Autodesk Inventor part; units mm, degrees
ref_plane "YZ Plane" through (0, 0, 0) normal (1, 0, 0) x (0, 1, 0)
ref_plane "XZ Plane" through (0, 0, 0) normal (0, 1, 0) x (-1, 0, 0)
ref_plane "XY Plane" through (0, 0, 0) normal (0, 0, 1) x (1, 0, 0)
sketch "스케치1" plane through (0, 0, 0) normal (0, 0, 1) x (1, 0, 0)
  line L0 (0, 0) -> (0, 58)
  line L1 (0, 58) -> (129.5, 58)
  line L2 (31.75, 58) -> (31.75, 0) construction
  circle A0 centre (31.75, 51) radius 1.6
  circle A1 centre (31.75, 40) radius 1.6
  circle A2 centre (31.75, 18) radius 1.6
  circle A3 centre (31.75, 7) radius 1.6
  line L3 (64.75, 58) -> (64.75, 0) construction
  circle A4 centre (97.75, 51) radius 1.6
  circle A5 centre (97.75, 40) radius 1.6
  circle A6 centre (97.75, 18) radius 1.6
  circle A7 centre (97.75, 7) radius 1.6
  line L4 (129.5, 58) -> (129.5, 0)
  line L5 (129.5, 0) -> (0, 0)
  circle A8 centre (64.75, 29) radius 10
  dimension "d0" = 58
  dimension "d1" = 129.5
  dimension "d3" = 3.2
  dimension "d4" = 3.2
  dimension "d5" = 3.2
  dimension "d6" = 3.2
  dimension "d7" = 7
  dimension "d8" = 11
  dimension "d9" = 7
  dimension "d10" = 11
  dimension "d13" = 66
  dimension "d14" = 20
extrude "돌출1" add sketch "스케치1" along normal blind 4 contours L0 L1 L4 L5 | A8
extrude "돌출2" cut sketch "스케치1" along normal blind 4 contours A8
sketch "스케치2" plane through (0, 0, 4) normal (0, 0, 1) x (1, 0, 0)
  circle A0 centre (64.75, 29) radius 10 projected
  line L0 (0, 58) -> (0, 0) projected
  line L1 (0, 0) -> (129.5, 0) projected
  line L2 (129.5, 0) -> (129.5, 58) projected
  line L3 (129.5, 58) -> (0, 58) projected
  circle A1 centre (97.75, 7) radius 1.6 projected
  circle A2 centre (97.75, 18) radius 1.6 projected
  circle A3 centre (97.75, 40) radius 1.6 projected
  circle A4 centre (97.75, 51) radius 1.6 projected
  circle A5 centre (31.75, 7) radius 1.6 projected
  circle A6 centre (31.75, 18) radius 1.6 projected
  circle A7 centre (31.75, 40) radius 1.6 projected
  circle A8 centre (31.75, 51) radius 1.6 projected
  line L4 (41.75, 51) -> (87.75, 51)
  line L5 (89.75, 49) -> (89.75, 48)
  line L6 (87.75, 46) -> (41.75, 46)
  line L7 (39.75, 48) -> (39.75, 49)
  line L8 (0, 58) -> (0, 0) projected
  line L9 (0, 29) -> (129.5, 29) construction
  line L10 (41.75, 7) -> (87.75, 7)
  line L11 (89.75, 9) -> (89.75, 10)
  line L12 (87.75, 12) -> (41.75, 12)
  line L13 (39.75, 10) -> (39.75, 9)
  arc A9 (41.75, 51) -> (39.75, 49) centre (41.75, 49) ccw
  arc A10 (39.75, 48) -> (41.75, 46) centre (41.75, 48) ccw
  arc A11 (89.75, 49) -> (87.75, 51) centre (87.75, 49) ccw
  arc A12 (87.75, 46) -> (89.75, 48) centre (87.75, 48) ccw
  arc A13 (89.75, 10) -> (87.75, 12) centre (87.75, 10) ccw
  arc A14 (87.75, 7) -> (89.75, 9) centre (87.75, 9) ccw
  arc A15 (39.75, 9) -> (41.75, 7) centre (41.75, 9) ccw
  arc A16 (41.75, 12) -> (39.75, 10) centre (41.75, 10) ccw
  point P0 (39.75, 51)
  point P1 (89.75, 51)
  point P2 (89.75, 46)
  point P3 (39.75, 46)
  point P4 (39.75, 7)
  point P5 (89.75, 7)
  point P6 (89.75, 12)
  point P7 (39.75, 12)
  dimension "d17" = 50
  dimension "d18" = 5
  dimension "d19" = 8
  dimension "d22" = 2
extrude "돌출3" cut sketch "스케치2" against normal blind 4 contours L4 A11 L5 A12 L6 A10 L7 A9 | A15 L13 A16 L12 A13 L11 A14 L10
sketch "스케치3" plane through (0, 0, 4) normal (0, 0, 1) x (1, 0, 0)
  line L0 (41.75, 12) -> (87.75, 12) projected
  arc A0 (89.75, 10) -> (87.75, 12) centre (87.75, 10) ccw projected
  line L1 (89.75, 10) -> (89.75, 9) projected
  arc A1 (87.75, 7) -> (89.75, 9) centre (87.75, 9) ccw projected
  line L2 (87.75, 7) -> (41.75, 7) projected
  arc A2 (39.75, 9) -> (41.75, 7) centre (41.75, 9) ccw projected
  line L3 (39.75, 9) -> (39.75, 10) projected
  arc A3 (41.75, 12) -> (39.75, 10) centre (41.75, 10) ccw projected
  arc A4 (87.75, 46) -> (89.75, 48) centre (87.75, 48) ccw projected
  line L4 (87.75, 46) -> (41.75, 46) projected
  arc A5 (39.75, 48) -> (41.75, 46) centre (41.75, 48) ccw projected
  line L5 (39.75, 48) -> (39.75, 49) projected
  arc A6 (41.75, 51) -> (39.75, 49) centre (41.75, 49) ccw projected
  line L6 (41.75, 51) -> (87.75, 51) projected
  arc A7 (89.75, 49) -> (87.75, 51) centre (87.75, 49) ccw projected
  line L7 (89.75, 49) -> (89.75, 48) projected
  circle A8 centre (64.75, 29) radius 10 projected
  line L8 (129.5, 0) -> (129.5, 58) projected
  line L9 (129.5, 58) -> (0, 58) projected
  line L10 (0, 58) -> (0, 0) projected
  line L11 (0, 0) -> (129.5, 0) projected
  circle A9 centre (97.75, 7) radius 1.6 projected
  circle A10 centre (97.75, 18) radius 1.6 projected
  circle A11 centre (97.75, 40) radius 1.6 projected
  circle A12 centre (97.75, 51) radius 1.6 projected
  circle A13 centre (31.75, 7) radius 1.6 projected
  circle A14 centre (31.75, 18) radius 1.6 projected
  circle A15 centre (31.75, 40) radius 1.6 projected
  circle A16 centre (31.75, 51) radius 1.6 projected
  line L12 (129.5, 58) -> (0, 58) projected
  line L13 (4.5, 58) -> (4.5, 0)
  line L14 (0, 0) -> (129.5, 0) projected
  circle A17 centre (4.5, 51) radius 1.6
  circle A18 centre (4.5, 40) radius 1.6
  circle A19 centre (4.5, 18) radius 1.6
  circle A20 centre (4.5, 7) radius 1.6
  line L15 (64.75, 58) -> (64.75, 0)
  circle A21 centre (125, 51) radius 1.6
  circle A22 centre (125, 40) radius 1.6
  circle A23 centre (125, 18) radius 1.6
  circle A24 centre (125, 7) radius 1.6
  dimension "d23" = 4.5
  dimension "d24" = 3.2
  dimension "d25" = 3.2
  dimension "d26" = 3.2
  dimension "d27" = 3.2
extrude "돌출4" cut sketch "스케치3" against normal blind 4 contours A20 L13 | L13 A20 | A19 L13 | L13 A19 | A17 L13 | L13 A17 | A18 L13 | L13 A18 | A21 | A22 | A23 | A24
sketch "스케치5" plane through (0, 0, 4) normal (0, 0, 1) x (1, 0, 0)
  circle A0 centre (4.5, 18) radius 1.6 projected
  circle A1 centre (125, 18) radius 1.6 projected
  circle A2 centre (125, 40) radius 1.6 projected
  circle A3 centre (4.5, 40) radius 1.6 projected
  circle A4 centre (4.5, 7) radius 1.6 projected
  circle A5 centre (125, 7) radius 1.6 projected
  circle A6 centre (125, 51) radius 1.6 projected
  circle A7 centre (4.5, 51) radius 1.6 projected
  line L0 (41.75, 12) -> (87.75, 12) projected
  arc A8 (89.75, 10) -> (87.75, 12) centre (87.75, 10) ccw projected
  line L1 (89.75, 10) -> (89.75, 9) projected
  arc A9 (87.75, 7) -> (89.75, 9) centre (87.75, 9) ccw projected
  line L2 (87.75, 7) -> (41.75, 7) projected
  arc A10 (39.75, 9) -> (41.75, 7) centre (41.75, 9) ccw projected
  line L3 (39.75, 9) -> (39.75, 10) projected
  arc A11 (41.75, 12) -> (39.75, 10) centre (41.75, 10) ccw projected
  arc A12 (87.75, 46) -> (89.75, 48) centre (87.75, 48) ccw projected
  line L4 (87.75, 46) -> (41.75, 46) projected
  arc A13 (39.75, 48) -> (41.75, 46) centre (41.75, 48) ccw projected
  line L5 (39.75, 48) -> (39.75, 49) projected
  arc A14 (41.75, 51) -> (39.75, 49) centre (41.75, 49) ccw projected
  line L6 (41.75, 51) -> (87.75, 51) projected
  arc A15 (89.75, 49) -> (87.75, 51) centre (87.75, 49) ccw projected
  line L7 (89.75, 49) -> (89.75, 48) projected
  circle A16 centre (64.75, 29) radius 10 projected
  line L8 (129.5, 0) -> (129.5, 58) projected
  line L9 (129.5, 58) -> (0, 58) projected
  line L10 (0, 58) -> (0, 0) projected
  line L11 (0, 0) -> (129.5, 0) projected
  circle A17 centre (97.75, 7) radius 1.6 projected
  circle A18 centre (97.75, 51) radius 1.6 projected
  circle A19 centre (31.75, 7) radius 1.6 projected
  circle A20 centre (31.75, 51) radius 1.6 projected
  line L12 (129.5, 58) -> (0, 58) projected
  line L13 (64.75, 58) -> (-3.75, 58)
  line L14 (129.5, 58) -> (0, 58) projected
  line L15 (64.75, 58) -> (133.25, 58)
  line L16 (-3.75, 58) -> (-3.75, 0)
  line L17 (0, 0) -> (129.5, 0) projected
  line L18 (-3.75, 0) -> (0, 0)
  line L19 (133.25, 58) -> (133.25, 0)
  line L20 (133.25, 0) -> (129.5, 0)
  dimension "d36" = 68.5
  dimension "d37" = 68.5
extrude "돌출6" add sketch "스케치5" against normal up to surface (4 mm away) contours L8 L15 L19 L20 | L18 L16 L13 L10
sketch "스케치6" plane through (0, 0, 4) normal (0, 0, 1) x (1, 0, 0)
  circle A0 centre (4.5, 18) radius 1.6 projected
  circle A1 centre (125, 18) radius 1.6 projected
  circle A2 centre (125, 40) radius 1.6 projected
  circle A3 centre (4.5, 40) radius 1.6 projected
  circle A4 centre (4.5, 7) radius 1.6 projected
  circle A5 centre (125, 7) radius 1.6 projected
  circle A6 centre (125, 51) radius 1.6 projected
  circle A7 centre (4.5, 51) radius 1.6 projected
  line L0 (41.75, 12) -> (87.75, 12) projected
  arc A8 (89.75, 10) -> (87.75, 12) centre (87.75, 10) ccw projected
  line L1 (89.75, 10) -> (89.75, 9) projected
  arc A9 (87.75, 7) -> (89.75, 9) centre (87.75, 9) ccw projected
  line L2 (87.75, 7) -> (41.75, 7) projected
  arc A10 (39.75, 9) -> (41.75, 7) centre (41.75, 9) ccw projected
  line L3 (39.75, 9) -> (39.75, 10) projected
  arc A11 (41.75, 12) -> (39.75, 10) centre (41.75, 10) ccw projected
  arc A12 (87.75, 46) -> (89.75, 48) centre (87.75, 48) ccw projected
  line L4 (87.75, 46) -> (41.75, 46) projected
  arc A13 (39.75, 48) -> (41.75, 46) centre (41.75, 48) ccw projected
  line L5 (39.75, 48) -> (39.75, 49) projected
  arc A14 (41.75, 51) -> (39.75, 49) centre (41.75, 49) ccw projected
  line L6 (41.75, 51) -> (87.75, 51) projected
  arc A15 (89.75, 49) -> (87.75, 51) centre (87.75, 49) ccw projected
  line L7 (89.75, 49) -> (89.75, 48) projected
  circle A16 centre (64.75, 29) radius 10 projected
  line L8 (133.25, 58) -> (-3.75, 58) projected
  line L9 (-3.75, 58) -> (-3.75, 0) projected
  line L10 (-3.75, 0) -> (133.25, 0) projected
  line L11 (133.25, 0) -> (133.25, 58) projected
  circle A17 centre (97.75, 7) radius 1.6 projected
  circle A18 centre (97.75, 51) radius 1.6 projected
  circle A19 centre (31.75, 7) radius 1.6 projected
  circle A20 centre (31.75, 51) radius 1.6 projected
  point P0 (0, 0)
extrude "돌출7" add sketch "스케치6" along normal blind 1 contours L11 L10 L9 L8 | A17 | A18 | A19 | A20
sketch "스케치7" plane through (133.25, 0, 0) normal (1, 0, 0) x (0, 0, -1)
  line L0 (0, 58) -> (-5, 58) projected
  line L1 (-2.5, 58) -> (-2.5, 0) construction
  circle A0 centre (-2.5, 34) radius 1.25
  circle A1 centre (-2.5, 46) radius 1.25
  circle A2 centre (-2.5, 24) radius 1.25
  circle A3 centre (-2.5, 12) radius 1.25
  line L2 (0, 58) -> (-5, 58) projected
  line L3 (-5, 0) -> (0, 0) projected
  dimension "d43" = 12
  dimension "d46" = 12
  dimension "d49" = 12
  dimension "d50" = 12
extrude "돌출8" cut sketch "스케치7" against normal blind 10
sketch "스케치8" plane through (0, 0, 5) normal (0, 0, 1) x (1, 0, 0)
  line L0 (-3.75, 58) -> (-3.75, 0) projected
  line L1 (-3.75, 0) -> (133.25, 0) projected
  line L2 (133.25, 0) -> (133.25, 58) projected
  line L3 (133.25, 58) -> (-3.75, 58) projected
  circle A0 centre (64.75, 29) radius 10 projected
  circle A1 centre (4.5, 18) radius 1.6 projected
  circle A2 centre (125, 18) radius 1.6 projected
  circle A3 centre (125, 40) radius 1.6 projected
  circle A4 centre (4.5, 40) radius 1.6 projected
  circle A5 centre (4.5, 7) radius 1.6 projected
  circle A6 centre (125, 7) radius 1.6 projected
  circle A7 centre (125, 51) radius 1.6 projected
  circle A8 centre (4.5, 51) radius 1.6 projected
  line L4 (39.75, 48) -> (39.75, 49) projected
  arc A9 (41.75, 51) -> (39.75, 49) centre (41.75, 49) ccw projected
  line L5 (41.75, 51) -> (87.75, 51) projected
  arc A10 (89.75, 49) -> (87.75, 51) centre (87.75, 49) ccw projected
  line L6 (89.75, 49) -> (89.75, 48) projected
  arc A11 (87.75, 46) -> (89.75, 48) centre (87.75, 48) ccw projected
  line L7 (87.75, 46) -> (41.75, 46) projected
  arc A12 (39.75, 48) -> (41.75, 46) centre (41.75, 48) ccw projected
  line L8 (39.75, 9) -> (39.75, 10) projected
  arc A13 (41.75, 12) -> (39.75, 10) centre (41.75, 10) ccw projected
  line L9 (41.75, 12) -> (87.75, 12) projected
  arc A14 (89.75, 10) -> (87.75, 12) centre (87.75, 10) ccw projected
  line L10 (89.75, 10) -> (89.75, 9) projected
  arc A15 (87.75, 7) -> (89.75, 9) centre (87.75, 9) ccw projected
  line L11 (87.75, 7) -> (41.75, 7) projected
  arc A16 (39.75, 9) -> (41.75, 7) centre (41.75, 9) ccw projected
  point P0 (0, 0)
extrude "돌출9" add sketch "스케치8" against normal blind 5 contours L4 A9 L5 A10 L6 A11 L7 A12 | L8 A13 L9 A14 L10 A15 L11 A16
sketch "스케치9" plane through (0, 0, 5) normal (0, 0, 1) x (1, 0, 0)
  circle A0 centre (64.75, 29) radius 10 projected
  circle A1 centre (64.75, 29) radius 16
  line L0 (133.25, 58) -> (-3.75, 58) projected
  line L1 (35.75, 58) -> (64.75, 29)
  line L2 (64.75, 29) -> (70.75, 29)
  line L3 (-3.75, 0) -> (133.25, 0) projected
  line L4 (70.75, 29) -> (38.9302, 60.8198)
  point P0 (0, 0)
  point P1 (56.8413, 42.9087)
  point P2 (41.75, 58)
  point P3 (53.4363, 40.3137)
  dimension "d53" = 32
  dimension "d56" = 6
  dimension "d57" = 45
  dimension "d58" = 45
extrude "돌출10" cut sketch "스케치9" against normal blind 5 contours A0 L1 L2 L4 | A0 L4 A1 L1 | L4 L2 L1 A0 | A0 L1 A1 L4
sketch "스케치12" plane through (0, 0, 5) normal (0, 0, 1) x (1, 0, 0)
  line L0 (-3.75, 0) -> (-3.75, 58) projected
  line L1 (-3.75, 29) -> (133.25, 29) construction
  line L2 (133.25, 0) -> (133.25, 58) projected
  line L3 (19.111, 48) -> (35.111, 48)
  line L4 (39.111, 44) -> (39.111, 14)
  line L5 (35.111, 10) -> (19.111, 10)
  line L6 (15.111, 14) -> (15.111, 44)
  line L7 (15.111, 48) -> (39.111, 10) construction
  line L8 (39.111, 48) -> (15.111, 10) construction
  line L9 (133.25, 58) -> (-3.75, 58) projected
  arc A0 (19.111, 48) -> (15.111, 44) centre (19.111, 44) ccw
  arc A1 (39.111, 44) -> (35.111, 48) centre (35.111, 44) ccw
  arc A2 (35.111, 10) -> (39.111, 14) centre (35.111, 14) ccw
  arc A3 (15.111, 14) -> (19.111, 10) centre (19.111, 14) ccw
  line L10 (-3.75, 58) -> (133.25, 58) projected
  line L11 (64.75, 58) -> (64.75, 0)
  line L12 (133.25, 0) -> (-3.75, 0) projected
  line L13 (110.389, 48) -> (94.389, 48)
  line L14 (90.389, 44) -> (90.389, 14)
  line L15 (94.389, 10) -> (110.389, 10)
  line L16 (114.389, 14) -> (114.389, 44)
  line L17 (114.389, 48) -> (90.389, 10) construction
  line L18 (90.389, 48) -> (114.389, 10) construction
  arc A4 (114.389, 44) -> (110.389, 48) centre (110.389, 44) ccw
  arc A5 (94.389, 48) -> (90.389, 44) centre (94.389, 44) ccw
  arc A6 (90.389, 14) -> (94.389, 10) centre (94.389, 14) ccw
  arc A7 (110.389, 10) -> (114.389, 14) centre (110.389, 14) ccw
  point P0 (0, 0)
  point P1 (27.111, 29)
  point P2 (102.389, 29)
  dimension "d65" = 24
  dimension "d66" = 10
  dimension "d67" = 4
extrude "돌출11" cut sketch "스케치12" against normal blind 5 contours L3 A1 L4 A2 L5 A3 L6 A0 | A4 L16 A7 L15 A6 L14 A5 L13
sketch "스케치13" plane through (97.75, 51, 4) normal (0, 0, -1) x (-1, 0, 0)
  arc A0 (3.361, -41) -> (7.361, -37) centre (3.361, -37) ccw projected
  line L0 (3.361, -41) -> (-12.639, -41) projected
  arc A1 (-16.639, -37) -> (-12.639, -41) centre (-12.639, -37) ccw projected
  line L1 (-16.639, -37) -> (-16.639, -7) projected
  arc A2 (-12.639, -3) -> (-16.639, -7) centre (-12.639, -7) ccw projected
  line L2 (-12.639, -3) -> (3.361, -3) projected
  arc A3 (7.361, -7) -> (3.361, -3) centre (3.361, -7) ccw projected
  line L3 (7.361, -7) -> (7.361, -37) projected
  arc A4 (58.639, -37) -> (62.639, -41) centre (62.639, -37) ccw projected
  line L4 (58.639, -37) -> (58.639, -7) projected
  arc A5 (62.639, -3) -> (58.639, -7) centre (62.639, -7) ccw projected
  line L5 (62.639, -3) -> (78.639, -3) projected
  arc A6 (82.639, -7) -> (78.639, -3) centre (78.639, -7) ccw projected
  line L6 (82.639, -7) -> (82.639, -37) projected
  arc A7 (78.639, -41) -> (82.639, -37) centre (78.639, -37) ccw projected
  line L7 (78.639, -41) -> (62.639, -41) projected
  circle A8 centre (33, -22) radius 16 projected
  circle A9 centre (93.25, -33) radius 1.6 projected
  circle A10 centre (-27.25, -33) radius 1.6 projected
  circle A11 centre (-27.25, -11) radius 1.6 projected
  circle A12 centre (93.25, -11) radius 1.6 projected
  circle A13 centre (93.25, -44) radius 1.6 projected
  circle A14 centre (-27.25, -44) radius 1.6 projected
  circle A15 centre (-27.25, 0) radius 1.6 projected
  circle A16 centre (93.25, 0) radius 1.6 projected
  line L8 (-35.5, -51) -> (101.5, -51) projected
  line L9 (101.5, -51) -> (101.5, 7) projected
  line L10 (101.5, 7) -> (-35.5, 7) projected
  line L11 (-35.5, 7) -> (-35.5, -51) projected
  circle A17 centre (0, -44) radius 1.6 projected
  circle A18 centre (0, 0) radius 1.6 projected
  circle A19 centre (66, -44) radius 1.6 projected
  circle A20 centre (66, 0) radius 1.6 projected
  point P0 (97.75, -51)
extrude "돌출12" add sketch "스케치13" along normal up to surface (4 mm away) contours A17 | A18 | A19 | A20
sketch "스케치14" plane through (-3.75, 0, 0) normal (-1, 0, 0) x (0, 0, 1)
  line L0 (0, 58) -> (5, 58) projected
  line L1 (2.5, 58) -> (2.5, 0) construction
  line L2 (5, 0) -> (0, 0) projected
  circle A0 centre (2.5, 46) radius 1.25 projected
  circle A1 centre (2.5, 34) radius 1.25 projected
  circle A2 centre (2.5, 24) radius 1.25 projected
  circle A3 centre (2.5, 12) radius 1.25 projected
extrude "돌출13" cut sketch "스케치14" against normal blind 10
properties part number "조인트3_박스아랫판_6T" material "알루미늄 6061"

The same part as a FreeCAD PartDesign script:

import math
import FreeCAD as App
import Part
import Sketcher

V = App.Vector

doc = App.newDocument("Part")
body = doc.addObject("PartDesign::Body", "Body")

# Sketch on XY plane
sketch1 = body.newObject("Sketcher::SketchObject", "Sketch")
sketch1.AttachmentSupport = (doc.getObject("XY_Plane"), [""])
sketch1.MapMode = "FlatFace"
sketch1.addGeometry([
    Part.LineSegment(V(0, 58, 0), V(0, 0, 0)),  # 0
    Part.LineSegment(V(0, 0, 0), V(129.5, 0, 0)),  # 1
    Part.LineSegment(V(129.5, 0, 0), V(129.5, 58, 0)),  # 2
    Part.LineSegment(V(129.5, 58, 0), V(0, 58, 0)),  # 3
    Part.Circle(V(31.8, 7, 0), V(0, 0, 1), 1.6),  # 4
    Part.Circle(V(31.8, 18, 0), V(0, 0, 1), 1.6),  # 5
    Part.Circle(V(97.8, 7, 0), V(0, 0, 1), 1.6),  # 6
    Part.Circle(V(97.8, 18, 0), V(0, 0, 1), 1.6),  # 7
    Part.Circle(V(31.8, 40, 0), V(0, 0, 1), 1.6),  # 8
    Part.Circle(V(31.8, 51, 0), V(0, 0, 1), 1.6),  # 9
    Part.Circle(V(97.8, 40, 0), V(0, 0, 1), 1.6),  # 10
    Part.Circle(V(97.8, 51, 0), V(0, 0, 1), 1.6),  # 11
], False)
sketch1.addConstraint([
    Sketcher.Constraint("Coincident", 0, 2, 1, 1),
    Sketcher.Constraint("Coincident", 1, 2, 2, 1),
    Sketcher.Constraint("Coincident", 2, 2, 3, 1),
    Sketcher.Constraint("Coincident", 3, 2, 0, 1),
    Sketcher.Constraint("Vertical", 0),
    Sketcher.Constraint("Horizontal", 1),
    Sketcher.Constraint("Vertical", 2),
    Sketcher.Constraint("Horizontal", 3),
    Sketcher.Constraint("Coincident", 0, 2, -1, 1),
    Sketcher.Constraint("Equal", 4, 5),
    Sketcher.Constraint("Equal", 5, 6),
    Sketcher.Constraint("Equal", 6, 7),
    Sketcher.Constraint("Equal", 7, 8),
    Sketcher.Constraint("Equal", 8, 9),
    Sketcher.Constraint("Equal", 9, 10),
    Sketcher.Constraint("Equal", 10, 11),
    Sketcher.Constraint("Horizontal", 4, 3, 6, 3),
    Sketcher.Constraint("Horizontal", 5, 3, 7, 3),
    Sketcher.Constraint("Horizontal", 8, 3, 10, 3),
    Sketcher.Constraint("Horizontal", 9, 3, 11, 3),
    Sketcher.Constraint("Vertical", 4, 3, 5, 3),
    Sketcher.Constraint("Vertical", 6, 3, 7, 3),
    Sketcher.Constraint("Vertical", 5, 3, 8, 3),
    Sketcher.Constraint("Vertical", 8, 3, 9, 3),
    Sketcher.Constraint("Vertical", 7, 3, 10, 3),
    Sketcher.Constraint("Vertical", 10, 3, 11, 3),
    Sketcher.Constraint("Diameter", 4, 3.2),
    Sketcher.Constraint("DistanceY", 0, 2, 0, 1, 58.0),
    Sketcher.Constraint("DistanceX", 1, 1, 1, 2, 129.5),
    Sketcher.Constraint("DistanceY", -1, 1, 4, 3, 7.0),
    Sketcher.Constraint("DistanceY", 4, 3, 5, 3, 11.0),
    Sketcher.Constraint("DistanceX", 4, 3, 6, 3, 66.0),
    Sketcher.Constraint("DistanceY", 8, 3, 9, 3, 11.0),
    Sketcher.Constraint("DistanceY", 11, 3, 2, 2, 7.0),
    Sketcher.Constraint("DistanceX", -1, 1, 4, 3, 31.75),
])
pad1 = body.newObject("PartDesign::Pad", "Pad")
pad1.Profile = sketch1
pad1.Length = 4

# Sketch on XY plane
sketch2 = body.newObject("Sketcher::SketchObject", "Sketch001")
sketch2.AttachmentSupport = (doc.getObject("XY_Plane"), [""])
sketch2.MapMode = "FlatFace"
sketch2.addGeometry(Part.Circle(V(65, 29, 0), V(0, 0, 1), 10), False)
sketch2.addConstraint([
    Sketcher.Constraint("Diameter", 0, 20.0),
    Sketcher.Constraint("DistanceY", -1, 1, 0, 3, 29.0),
    Sketcher.Constraint("DistanceX", -1, 1, 0, 3, 64.75),
])
pocket1 = body.newObject("PartDesign::Pocket", "Pocket")
pocket1.Profile = sketch2
pocket1.Length = 4
pocket1.Reversed = True

# Sketch on XY plane
sketch3 = body.newObject("Sketcher::SketchObject", "Sketch002")
sketch3.AttachmentSupport = (doc.getObject("XY_Plane"), [""])
sketch3.MapMode = "FlatFace"
sketch3.AttachmentOffset = App.Placement(V(0, 0, 4), App.Rotation())
sketch3.addGeometry([
    Part.LineSegment(V(87.8, 51, 0), V(41.8, 51, 0)),  # 0
    Part.ArcOfCircle(Part.Circle(V(41.8, 49, 0), V(0, 0, 1), 2), math.radians(90), math.radians(180)),  # 1
    Part.LineSegment(V(39.8, 49, 0), V(39.8, 48, 0)),  # 2
    Part.ArcOfCircle(Part.Circle(V(41.8, 48, 0), V(0, 0, 1), 2), math.radians(180), math.radians(270)),  # 3
    Part.LineSegment(V(41.8, 46, 0), V(87.8, 46, 0)),  # 4
    Part.ArcOfCircle(Part.Circle(V(87.8, 48, 0), V(0, 0, 1), 2), math.radians(-90), math.radians(0)),  # 5
    Part.LineSegment(V(89.8, 48, 0), V(89.8, 49, 0)),  # 6
    Part.ArcOfCircle(Part.Circle(V(87.8, 49, 0), V(0, 0, 1), 2), math.radians(0), math.radians(90)),  # 7
    Part.ArcOfCircle(Part.Circle(V(41.8, 9, 0), V(0, 0, 1), 2), math.radians(180), math.radians(270)),  # 8
    Part.LineSegment(V(41.8, 7, 0), V(87.8, 7, 0)),  # 9
    Part.ArcOfCircle(Part.Circle(V(87.8, 9, 0), V(0, 0, 1), 2), math.radians(-90), math.radians(0)),  # 10
    Part.LineSegment(V(89.8, 9, 0), V(89.8, 10, 0)),  # 11
    Part.ArcOfCircle(Part.Circle(V(87.8, 10, 0), V(0, 0, 1), 2), math.radians(0), math.radians(90)),  # 12
    Part.LineSegment(V(87.8, 12, 0), V(41.8, 12, 0)),  # 13
    Part.ArcOfCircle(Part.Circle(V(41.8, 10, 0), V(0, 0, 1), 2), math.radians(90), math.radians(180)),  # 14
    Part.LineSegment(V(39.8, 10, 0), V(39.8, 9, 0)),  # 15
], False)
sketch3.addConstraint([
    Sketcher.Constraint("Tangent", 0, 2, 1, 1),
    Sketcher.Constraint("Tangent", 1, 2, 2, 1),
    Sketcher.Constraint("Tangent", 2, 2, 3, 1),
    Sketcher.Constraint("Tangent", 3, 2, 4, 1),
    Sketcher.Constraint("Tangent", 4, 2, 5, 1),
    Sketcher.Constraint("Tangent", 5, 2, 6, 1),
    Sketcher.Constraint("Tangent", 6, 2, 7, 1),
    Sketcher.Constraint("Tangent", 7, 2, 0, 1),
    Sketcher.Constraint("Tangent", 8, 2, 9, 1),
    Sketcher.Constraint("Tangent", 9, 2, 10, 1),
    Sketcher.Constraint("Tangent", 10, 2, 11, 1),
    Sketcher.Constraint("Tangent", 11, 2, 12, 1),
    Sketcher.Constraint("Tangent", 12, 2, 13, 1),
    Sketcher.Constraint("Tangent", 13, 2, 14, 1),
    Sketcher.Constraint("Tangent", 14, 2, 15, 1),
    Sketcher.Constraint("Tangent", 15, 2, 8, 1),
    Sketcher.Constraint("Horizontal", 0),
    Sketcher.Constraint("Vertical", 2),
    Sketcher.Constraint("Horizontal", 4),
    Sketcher.Constraint("Vertical", 6),
    Sketcher.Constraint("Horizontal", 9),
    Sketcher.Constraint("Vertical", 11),
    Sketcher.Constraint("Horizontal", 13),
    Sketcher.Constraint("Vertical", 15),
    Sketcher.Constraint("Equal", 1, 3),
    Sketcher.Constraint("Equal", 3, 5),
    Sketcher.Constraint("Equal", 5, 7),
    Sketcher.Constraint("Equal", 7, 8),
    Sketcher.Constraint("Equal", 8, 10),
    Sketcher.Constraint("Equal", 10, 12),
    Sketcher.Constraint("Equal", 12, 14),
    Sketcher.Constraint("Vertical", 3, 3, 8, 3),
    Sketcher.Constraint("Vertical", 7, 3, 10, 3),
    Sketcher.Constraint("Equal", 6, 11),
    Sketcher.Constraint("Radius", 1, 2.0),
    Sketcher.Constraint("DistanceY", 3, 2, 0, 2, 5.0),
    Sketcher.Constraint("DistanceX", 0, 2, 0, 1, 46.0),
    Sketcher.Constraint("DistanceY", -1, 1, 1, 3, 49.0),
    Sketcher.Constraint("DistanceY", -1, 1, 8, 3, 9.0),
    Sketcher.Constraint("DistanceX", -1, 1, 1, 3, 41.75),
])
pocket2 = body.newObject("PartDesign::Pocket", "Pocket001")
pocket2.Profile = sketch3
pocket2.Length = 4

# Sketch on XY plane
sketch4 = body.newObject("Sketcher::SketchObject", "Sketch003")
sketch4.AttachmentSupport = (doc.getObject("XY_Plane"), [""])
sketch4.MapMode = "FlatFace"
sketch4.AttachmentOffset = App.Placement(V(0, 0, 4), App.Rotation())
sketch4.addGeometry([
    Part.Circle(V(4.5, 7, 0), V(0, 0, 1), 1.6),  # 0
    Part.Circle(V(4.5, 18, 0), V(0, 0, 1), 1.6),  # 1
    Part.Circle(V(4.5, 51, 0), V(0, 0, 1), 1.6),  # 2
    Part.Circle(V(4.5, 40, 0), V(0, 0, 1), 1.6),  # 3
    Part.Circle(V(125, 51, 0), V(0, 0, 1), 1.6),  # 4
    Part.Circle(V(125, 40, 0), V(0, 0, 1), 1.6),  # 5
    Part.Circle(V(125, 18, 0), V(0, 0, 1), 1.6),  # 6
    Part.Circle(V(125, 7, 0), V(0, 0, 1), 1.6),  # 7
], False)
sketch4.addConstraint([
    Sketcher.Constraint("Equal", 0, 1),
    Sketcher.Constraint("Equal", 1, 2),
    Sketcher.Constraint("Equal", 2, 3),
    Sketcher.Constraint("Equal", 3, 4),
    Sketcher.Constraint("Equal", 4, 5),
    Sketcher.Constraint("Equal", 5, 6),
    Sketcher.Constraint("Equal", 6, 7),
    Sketcher.Constraint("Horizontal", 2, 3, 4, 3),
    Sketcher.Constraint("Horizontal", 3, 3, 5, 3),
    Sketcher.Constraint("Horizontal", 1, 3, 6, 3),
    Sketcher.Constraint("Horizontal", 0, 3, 7, 3),
    Sketcher.Constraint("Vertical", 0, 3, 1, 3),
    Sketcher.Constraint("Vertical", 1, 3, 2, 3),
    Sketcher.Constraint("Vertical", 2, 3, 3, 3),
    Sketcher.Constraint("Vertical", 4, 3, 5, 3),
    Sketcher.Constraint("Vertical", 5, 3, 6, 3),
    Sketcher.Constraint("Vertical", 6, 3, 7, 3),
    Sketcher.Constraint("Diameter", 0, 3.2),
    Sketcher.Constraint("DistanceX", -1, 1, 0, 3, 4.5),
    Sketcher.Constraint("DistanceY", -1, 1, 0, 3, 7.0),
    Sketcher.Constraint("DistanceY", -1, 1, 1, 3, 18.0),
    Sketcher.Constraint("DistanceY", -1, 1, 2, 3, 51.0),
    Sketcher.Constraint("DistanceY", -1, 1, 3, 3, 40.0),
    Sketcher.Constraint("DistanceX", -1, 1, 4, 3, 125.0),
])
pocket3 = body.newObject("PartDesign::Pocket", "Pocket002")
pocket3.Profile = sketch4
pocket3.Length = 4

# Sketch on XY plane
sketch5 = body.newObject("Sketcher::SketchObject", "Sketch004")
sketch5.AttachmentSupport = (doc.getObject("XY_Plane"), [""])
sketch5.MapMode = "FlatFace"
sketch5.AttachmentOffset = App.Placement(V(0, 0, 4), App.Rotation())
sketch5.addGeometry([
    Part.LineSegment(V(129.5, 58, 0), V(129.5, 0, 0)),  # 0
    Part.LineSegment(V(129.5, 0, 0), V(133.2, 0, 0)),  # 1
    Part.LineSegment(V(133.2, 0, 0), V(133.2, 58, 0)),  # 2
    Part.LineSegment(V(133.2, 58, 0), V(129.5, 58, 0)),  # 3
    Part.LineSegment(V(-3.8, 0, 0), V(0, 0, 0)),  # 4
    Part.LineSegment(V(0, 0, 0), V(0, 58, 0)),  # 5
    Part.LineSegment(V(0, 58, 0), V(-3.8, 58, 0)),  # 6
    Part.LineSegment(V(-3.8, 58, 0), V(-3.8, 0, 0)),  # 7
], False)
sketch5.addConstraint([
    Sketcher.Constraint("Coincident", 0, 2, 1, 1),
    Sketcher.Constraint("Coincident", 1, 2, 2, 1),
    Sketcher.Constraint("Coincident", 2, 2, 3, 1),
    Sketcher.Constraint("Coincident", 3, 2, 0, 1),
    Sketcher.Constraint("Coincident", 4, 2, 5, 1),
    Sketcher.Constraint("Coincident", 5, 2, 6, 1),
    Sketcher.Constraint("Coincident", 6, 2, 7, 1),
    Sketcher.Constraint("Coincident", 7, 2, 4, 1),
    Sketcher.Constraint("Vertical", 0),
    Sketcher.Constraint("Horizontal", 1),
    Sketcher.Constraint("Vertical", 2),
    Sketcher.Constraint("Horizontal", 3),
    Sketcher.Constraint("Horizontal", 4),
    Sketcher.Constraint("Vertical", 5),
    Sketcher.Constraint("Horizontal", 6),
    Sketcher.Constraint("Vertical", 7),
    Sketcher.Constraint("Coincident", 4, 2, -1, 1),
    Sketcher.Constraint("PointOnObject", 0, 2, -1),
    Sketcher.Constraint("Horizontal", 3, 2, 5, 2),
    Sketcher.Constraint("Equal", 3, 4),
    Sketcher.Constraint("DistanceY", 0, 2, 0, 1, 58.0),
    Sketcher.Constraint("DistanceX", 6, 2, 2, 2, 137.0),
    Sketcher.Constraint("DistanceX", 1, 1, 1, 2, 3.75),
])
pad2 = body.newObject("PartDesign::Pad", "Pad001")
pad2.Profile = sketch5
pad2.Length = 4
pad2.Reversed = True

# Sketch on XY plane
sketch6 = body.newObject("Sketcher::SketchObject", "Sketch005")
sketch6.AttachmentSupport = (doc.getObject("XY_Plane"), [""])
sketch6.MapMode = "FlatFace"
sketch6.AttachmentOffset = App.Placement(V(0, 0, 4), App.Rotation())
sketch6.addGeometry([
    Part.LineSegment(V(133.2, 0, 0), V(133.2, 58, 0)),  # 0
    Part.LineSegment(V(133.2, 58, 0), V(-3.8, 58, 0)),  # 1
    Part.LineSegment(V(-3.8, 58, 0), V(-3.8, 0, 0)),  # 2
    Part.LineSegment(V(-3.8, 0, 0), V(133.2, 0, 0)),  # 3
    Part.Circle(V(4.5, 7, 0), V(0, 0, 1), 1.6),  # 4
    Part.Circle(V(4.5, 18, 0), V(0, 0, 1), 1.6),  # 5
    Part.ArcOfCircle(Part.Circle(V(41.8, 10, 0), V(0, 0, 1), 2), math.radians(90), math.radians(180)),  # 6
    Part.LineSegment(V(41.8, 12, 0), V(87.8, 12, 0)),  # 7
    Part.ArcOfCircle(Part.Circle(V(87.8, 10, 0), V(0, 0, 1), 2), math.radians(0), math.radians(90)),  # 8
    Part.LineSegment(V(89.8, 10, 0), V(89.8, 9, 0)),  # 9
    Part.ArcOfCircle(Part.Circle(V(87.8, 9, 0), V(0, 0, 1), 2), math.radians(-90), math.radians(0)),  # 10
    Part.LineSegment(V(87.8, 7, 0), V(41.8, 7, 0)),  # 11
    Part.ArcOfCircle(Part.Circle(V(41.8, 9, 0), V(0, 0, 1), 2), math.radians(180), math.radians(270)),  # 12
    Part.LineSegment(V(39.8, 9, 0), V(39.8, 10, 0)),  # 13
    Part.Circle(V(125, 7, 0), V(0, 0, 1), 1.6),  # 14
    Part.Circle(V(125, 18, 0), V(0, 0, 1), 1.6),  # 15
    Part.Circle(V(4.5, 40, 0), V(0, 0, 1), 1.6),  # 16
    Part.Circle(V(4.5, 51, 0), V(0, 0, 1), 1.6),  # 17
    Part.Circle(V(64.8, 29, 0), V(0, 0, 1), 10),  # 18
    Part.Circle(V(125, 40, 0), V(0, 0, 1), 1.6),  # 19
    Part.ArcOfCircle(Part.Circle(V(87.8, 48, 0), V(0, 0, 1), 2), math.radians(-90), math.radians(0)),  # 20
    Part.LineSegment(V(87.8, 46, 0), V(41.8, 46, 0)),  # 21
    Part.ArcOfCircle(Part.Circle(V(41.8, 48, 0), V(0, 0, 1), 2), math.radians(180), math.radians(270)),  # 22
    Part.LineSegment(V(39.8, 48, 0), V(39.8, 49, 0)),  # 23
    Part.ArcOfCircle(Part.Circle(V(41.8, 49, 0), V(0, 0, 1), 2), math.radians(90), math.radians(180)),  # 24
    Part.LineSegment(V(41.8, 51, 0), V(87.8, 51, 0)),  # 25
    Part.ArcOfCircle(Part.Circle(V(87.8, 49, 0), V(0, 0, 1), 2), math.radians(0), math.radians(90)),  # 26
    Part.LineSegment(V(89.8, 49, 0), V(89.8, 48, 0)),  # 27
    Part.Circle(V(125, 51, 0), V(0, 0, 1), 1.6),  # 28
], False)
sketch6.addConstraint([
    Sketcher.Constraint("Coincident", 0, 2, 1, 1),
    Sketcher.Constraint("Coincident", 1, 2, 2, 1),
    Sketcher.Constraint("Coincident", 2, 2, 3, 1),
    Sketcher.Constraint("Coincident", 3, 2, 0, 1),
    Sketcher.Constraint("Tangent", 6, 1, 7, 1),
    Sketcher.Constraint("Tangent", 7, 2, 8, 2),
    Sketcher.Constraint("Tangent", 8, 1, 9, 1),
    Sketcher.Constraint("Tangent", 9, 2, 10, 2),
    Sketcher.Constraint("Tangent", 10, 1, 11, 1),
    Sketcher.Constraint("Tangent", 11, 2, 12, 2),
    Sketcher.Constraint("Tangent", 12, 1, 13, 1),
    Sketcher.Constraint("Tangent", 13, 2, 6, 2),
    Sketcher.Constraint("Tangent", 20, 1, 21, 1),
    Sketcher.Constraint("Tangent", 21, 2, 22, 2),
    Sketcher.Constraint("Tangent", 22, 1, 23, 1),
    Sketcher.Constraint("Tangent", 23, 2, 24, 2),
    Sketcher.Constraint("Tangent", 24, 1, 25, 1),
    Sketcher.Constraint("Tangent", 25, 2, 26, 2),
    Sketcher.Constraint("Tangent", 26, 1, 27, 1),
    Sketcher.Constraint("Tangent", 27, 2, 20, 2),
    Sketcher.Constraint("Vertical", 0),
    Sketcher.Constraint("Horizontal", 1),
    Sketcher.Constraint("Vertical", 2),
    Sketcher.Constraint("Horizontal", 3),
    Sketcher.Constraint("Horizontal", 7),
    Sketcher.Constraint("Vertical", 9),
    Sketcher.Constraint("Horizontal", 11),
    Sketcher.Constraint("Vertical", 13),
    Sketcher.Constraint("Horizontal", 21),
    Sketcher.Constraint("Vertical", 23),
    Sketcher.Constraint("Horizontal", 25),
    Sketcher.Constraint("Vertical", 27),
    Sketcher.Constraint("Equal", 4, 5),
    Sketcher.Constraint("Equal", 6, 8),
    Sketcher.Constraint("Equal", 8, 10),
    Sketcher.Constraint("Equal", 10, 12),
    Sketcher.Constraint("Equal", 5, 14),
    Sketcher.Constraint("Equal", 14, 15),
    Sketcher.Constraint("Equal", 15, 16),
    Sketcher.Constraint("Equal", 16, 17),
    Sketcher.Constraint("Equal", 17, 19),
    Sketcher.Constraint("Equal", 12, 20),
    Sketcher.Constraint("Equal", 20, 22),
    Sketcher.Constraint("Equal", 22, 24),
    Sketcher.Constraint("Equal", 24, 26),
    Sketcher.Constraint("Equal", 19, 28),
    Sketcher.Constraint("PointOnObject", 2, 2, -1),
    Sketcher.Constraint("Horizontal", 4, 3, 14, 3),
    Sketcher.Constraint("Horizontal", 5, 3, 15, 3),
    Sketcher.Constraint("Horizontal", 16, 3, 19, 3),
    Sketcher.Constraint("Horizontal", 17, 3, 28, 3),
    Sketcher.Constraint("Horizontal", 14, 3, 10, 1),
    Sketcher.Constraint("Horizontal", 28, 3, 24, 1),
    Sketcher.Constraint("Vertical", 4, 3, 5, 3),
    Sketcher.Constraint("Vertical", 14, 3, 15, 3),
    Sketcher.Constraint("Vertical", 5, 3, 16, 3),
    Sketcher.Constraint("Vertical", 16, 3, 17, 3),
    Sketcher.Constraint("Vertical", 15, 3, 19, 3),
    Sketcher.Constraint("Vertical", 10, 3, 20, 3),
    Sketcher.Constraint("Vertical", 12, 3, 22, 3),
    Sketcher.Constraint("Vertical", 19, 3, 28, 3),
    Sketcher.Constraint("Equal", 13, 23),
    Sketcher.Constraint("Diameter", 18, 20.0),
    Sketcher.Constraint("Radius", 6, 2.0),
    Sketcher.Constraint("Diameter", 4, 3.2),
    Sketcher.Constraint("DistanceX", 1, 2, 1, 1, 137.0),
    Sketcher.Constraint("DistanceX", 7, 1, 7, 2, 46.0),
    Sketcher.Constraint("DistanceY", 0, 1, 0, 2, 58.0),
    Sketcher.Constraint("DistanceY", 9, 2, 9, 1, 1.0),
    Sketcher.Constraint("DistanceY", -1, 1, 4, 3, 7.0),
    Sketcher.Constraint("DistanceY", -1, 1, 5, 3, 18.0),
    Sketcher.Constraint("DistanceX", -1, 1, 14, 3, 125.0),
    Sketcher.Constraint("DistanceY", -1, 1, 16, 3, 40.0),
    Sketcher.Constraint("DistanceY", -1, 1, 17, 3, 51.0),
    Sketcher.Constraint("DistanceY", -1, 1, 18, 3, 29.0),
    Sketcher.Constraint("DistanceX", 6, 3, 18, 3, 23.0),
    Sketcher.Constraint("DistanceX", -1, 1, 4, 3, 4.5),
    Sketcher.Constraint("DistanceX", 26, 3, 0, 2, 45.5),
    Sketcher.Constraint("DistanceX", -1, 1, 6, 3, 41.75),
])
pad3 = body.newObject("PartDesign::Pad", "Pad002")
pad3.Profile = sketch6
pad3.Length = 1

# Sketch on YZ plane
sketch7 = body.newObject("Sketcher::SketchObject", "Sketch006")
sketch7.AttachmentSupport = (doc.getObject("YZ_Plane"), [""])
sketch7.MapMode = "FlatFace"
sketch7.AttachmentOffset = App.Placement(V(0, 0, 133.25), App.Rotation())
sketch7.addGeometry([
    Part.Circle(V(34, 2.5, 0), V(0, 0, 1), 1.2),
    Part.Circle(V(46, 2.5, 0), V(0, 0, 1), 1.2),
    Part.Circle(V(24, 2.5, 0), V(0, 0, 1), 1.2),
    Part.Circle(V(12, 2.5, 0), V(0, 0, 1), 1.2),
], False)
sketch7.addConstraint([
    Sketcher.Constraint("Equal", 0, 1),
    Sketcher.Constraint("Equal", 1, 2),
    Sketcher.Constraint("Equal", 2, 3),
    Sketcher.Constraint("Horizontal", 0, 3, 1, 3),
    Sketcher.Constraint("Horizontal", 1, 3, 2, 3),
    Sketcher.Constraint("Horizontal", 2, 3, 3, 3),
    Sketcher.Constraint("DistanceX", -1, 1, 3, 3, 12.0),
    Sketcher.Constraint("DistanceX", 0, 3, 1, 3, 12.0),
    Sketcher.Constraint("DistanceX", 3, 3, 2, 3, 12.0),
    Sketcher.Constraint("Diameter", 0, 2.5),
    Sketcher.Constraint("DistanceX", -1, 1, 0, 3, 34.0),
    Sketcher.Constraint("DistanceY", -1, 1, 0, 3, 2.5),
])
pocket4 = body.newObject("PartDesign::Pocket", "Pocket003")
pocket4.Profile = sketch7
pocket4.Length = 10

# Sketch on XY plane
sketch8 = body.newObject("Sketcher::SketchObject", "Sketch007")
sketch8.AttachmentSupport = (doc.getObject("XY_Plane"), [""])
sketch8.MapMode = "FlatFace"
sketch8.AttachmentOffset = App.Placement(V(0, 0, 5), App.Rotation())
sketch8.addGeometry([
    Part.LineSegment(V(39.8, 49, 0), V(39.8, 48, 0)),  # 0
    Part.ArcOfCircle(Part.Circle(V(41.8, 48, 0), V(0, 0, 1), 2), math.radians(180), math.radians(270)),  # 1
    Part.LineSegment(V(41.8, 46, 0), V(87.8, 46, 0)),  # 2
    Part.ArcOfCircle(Part.Circle(V(87.8, 48, 0), V(0, 0, 1), 2), math.radians(-90), math.radians(0)),  # 3
    Part.LineSegment(V(89.8, 48, 0), V(89.8, 49, 0)),  # 4
    Part.ArcOfCircle(Part.Circle(V(87.8, 49, 0), V(0, 0, 1), 2), math.radians(0), math.radians(90)),  # 5
    Part.LineSegment(V(87.8, 51, 0), V(41.8, 51, 0)),  # 6
    Part.ArcOfCircle(Part.Circle(V(41.8, 49, 0), V(0, 0, 1), 2), math.radians(90), math.radians(180)),  # 7
    Part.LineSegment(V(39.8, 10, 0), V(39.8, 9, 0)),  # 8
    Part.ArcOfCircle(Part.Circle(V(41.8, 9, 0), V(0, 0, 1), 2), math.radians(180), math.radians(270)),  # 9
    Part.LineSegment(V(41.8, 7, 0), V(87.8, 7, 0)),  # 10
    Part.ArcOfCircle(Part.Circle(V(87.8, 9, 0), V(0, 0, 1), 2), math.radians(-90), math.radians(0)),  # 11
    Part.LineSegment(V(89.8, 9, 0), V(89.8, 10, 0)),  # 12
    Part.ArcOfCircle(Part.Circle(V(87.8, 10, 0), V(0, 0, 1), 2), math.radians(0), math.radians(90)),  # 13
    Part.LineSegment(V(87.8, 12, 0), V(41.8, 12, 0)),  # 14
    Part.ArcOfCircle(Part.Circle(V(41.8, 10, 0), V(0, 0, 1), 2), math.radians(90), math.radians(180)),  # 15
], False)
sketch8.addConstraint([
    Sketcher.Constraint("Tangent", 0, 2, 1, 1),
    Sketcher.Constraint("Tangent", 1, 2, 2, 1),
    Sketcher.Constraint("Tangent", 2, 2, 3, 1),
    Sketcher.Constraint("Tangent", 3, 2, 4, 1),
    Sketcher.Constraint("Tangent", 4, 2, 5, 1),
    Sketcher.Constraint("Tangent", 5, 2, 6, 1),
    Sketcher.Constraint("Tangent", 6, 2, 7, 1),
    Sketcher.Constraint("Tangent", 7, 2, 0, 1),
    Sketcher.Constraint("Tangent", 8, 2, 9, 1),
    Sketcher.Constraint("Tangent", 9, 2, 10, 1),
    Sketcher.Constraint("Tangent", 10, 2, 11, 1),
    Sketcher.Constraint("Tangent", 11, 2, 12, 1),
    Sketcher.Constraint("Tangent", 12, 2, 13, 1),
    Sketcher.Constraint("Tangent", 13, 2, 14, 1),
    Sketcher.Constraint("Tangent", 14, 2, 15, 1),
    Sketcher.Constraint("Tangent", 15, 2, 8, 1),
    Sketcher.Constraint("Vertical", 0),
    Sketcher.Constraint("Horizontal", 2),
    Sketcher.Constraint("Vertical", 4),
    Sketcher.Constraint("Horizontal", 6),
    Sketcher.Constraint("Vertical", 8),
    Sketcher.Constraint("Horizontal", 10),
    Sketcher.Constraint("Vertical", 12),
    Sketcher.Constraint("Horizontal", 14),
    Sketcher.Constraint("Equal", 1, 3),
    Sketcher.Constraint("Equal", 3, 5),
    Sketcher.Constraint("Equal", 5, 7),
    Sketcher.Constraint("Equal", 7, 9),
    Sketcher.Constraint("Equal", 9, 11),
    Sketcher.Constraint("Equal", 11, 13),
    Sketcher.Constraint("Equal", 13, 15),
    Sketcher.Constraint("Vertical", 7, 3, 9, 3),
    Sketcher.Constraint("Vertical", 5, 3, 11, 3),
    Sketcher.Constraint("Equal", 4, 8),
    Sketcher.Constraint("Radius", 1, 2.0),
    Sketcher.Constraint("DistanceX", 2, 1, 2, 2, 46.0),
    Sketcher.Constraint("DistanceY", 0, 2, 0, 1, 1.0),
    Sketcher.Constraint("DistanceY", -1, 1, 1, 3, 48.0),
    Sketcher.Constraint("DistanceY", -1, 1, 9, 3, 9.0),
    Sketcher.Constraint("DistanceX", -1, 1, 1, 3, 41.75),
])
pad4 = body.newObject("PartDesign::Pad", "Pad003")
pad4.Profile = sketch8
pad4.Length = 5
pad4.Reversed = True

# Sketch on XY plane
sketch9 = body.newObject("Sketcher::SketchObject", "Sketch008")
sketch9.AttachmentSupport = (doc.getObject("XY_Plane"), [""])
sketch9.MapMode = "FlatFace"
sketch9.AttachmentOffset = App.Placement(V(0, 0, 5), App.Rotation())
sketch9.addGeometry(Part.Circle(V(65, 29, 0), V(0, 0, 1), 16), False)
sketch9.addConstraint([
    Sketcher.Constraint("Diameter", 0, 32.0),
    Sketcher.Constraint("DistanceY", -1, 1, 0, 3, 29.0),
    Sketcher.Constraint("DistanceX", -1, 1, 0, 3, 64.75),
])
pocket5 = body.newObject("PartDesign::Pocket", "Pocket004")
pocket5.Profile = sketch9
pocket5.Length = 5

# Sketch on XY plane
sketch10 = body.newObject("Sketcher::SketchObject", "Sketch009")
sketch10.AttachmentSupport = (doc.getObject("XY_Plane"), [""])
sketch10.MapMode = "FlatFace"
sketch10.AttachmentOffset = App.Placement(V(0, 0, 5), App.Rotation())
sketch10.addGeometry([
    Part.LineSegment(V(35.1, 48, 0), V(19.1, 48, 0)),  # 0
    Part.ArcOfCircle(Part.Circle(V(19.1, 44, 0), V(0, 0, 1), 4), math.radians(90), math.radians(180)),  # 1
    Part.LineSegment(V(15.1, 44, 0), V(15.1, 14, 0)),  # 2
    Part.ArcOfCircle(Part.Circle(V(19.1, 14, 0), V(0, 0, 1), 4), math.radians(180), math.radians(270)),  # 3
    Part.LineSegment(V(19.1, 10, 0), V(35.1, 10, 0)),  # 4
    Part.ArcOfCircle(Part.Circle(V(35.1, 14, 0), V(0, 0, 1), 4), math.radians(-90), math.radians(0)),  # 5
    Part.LineSegment(V(39.1, 14, 0), V(39.1, 44, 0)),  # 6
    Part.ArcOfCircle(Part.Circle(V(35.1, 44, 0), V(0, 0, 1), 4), math.radians(0), math.radians(90)),  # 7
    Part.ArcOfCircle(Part.Circle(V(110.4, 44, 0), V(0, 0, 1), 4), math.radians(0), math.radians(90)),  # 8
    Part.LineSegment(V(110.4, 48, 0), V(94.4, 48, 0)),  # 9
    Part.ArcOfCircle(Part.Circle(V(94.4, 44, 0), V(0, 0, 1), 4), math.radians(90), math.radians(180)),  # 10
    Part.LineSegment(V(90.4, 44, 0), V(90.4, 14, 0)),  # 11
    Part.ArcOfCircle(Part.Circle(V(94.4, 14, 0), V(0, 0, 1), 4), math.radians(180), math.radians(270)),  # 12
    Part.LineSegment(V(94.4, 10, 0), V(110.4, 10, 0)),  # 13
    Part.ArcOfCircle(Part.Circle(V(110.4, 14, 0), V(0, 0, 1), 4), math.radians(-90), math.radians(0)),  # 14
    Part.LineSegment(V(114.4, 14, 0), V(114.4, 44, 0)),  # 15
], False)
sketch10.addConstraint([
    Sketcher.Constraint("Tangent", 0, 2, 1, 1),
    Sketcher.Constraint("Tangent", 1, 2, 2, 1),
    Sketcher.Constraint("Tangent", 2, 2, 3, 1),
    Sketcher.Constraint("Tangent", 3, 2, 4, 1),
    Sketcher.Constraint("Tangent", 4, 2, 5, 1),
    Sketcher.Constraint("Tangent", 5, 2, 6, 1),
    Sketcher.Constraint("Tangent", 6, 2, 7, 1),
    Sketcher.Constraint("Tangent", 7, 2, 0, 1),
    Sketcher.Constraint("Tangent", 8, 2, 9, 1),
    Sketcher.Constraint("Tangent", 9, 2, 10, 1),
    Sketcher.Constraint("Tangent", 10, 2, 11, 1),
    Sketcher.Constraint("Tangent", 11, 2, 12, 1),
    Sketcher.Constraint("Tangent", 12, 2, 13, 1),
    Sketcher.Constraint("Tangent", 13, 2, 14, 1),
    Sketcher.Constraint("Tangent", 14, 2, 15, 1),
    Sketcher.Constraint("Tangent", 15, 2, 8, 1),
    Sketcher.Constraint("Horizontal", 0),
    Sketcher.Constraint("Vertical", 2),
    Sketcher.Constraint("Horizontal", 4),
    Sketcher.Constraint("Vertical", 6),
    Sketcher.Constraint("Horizontal", 9),
    Sketcher.Constraint("Vertical", 11),
    Sketcher.Constraint("Horizontal", 13),
    Sketcher.Constraint("Vertical", 15),
    Sketcher.Constraint("Equal", 1, 3),
    Sketcher.Constraint("Equal", 3, 5),
    Sketcher.Constraint("Equal", 5, 7),
    Sketcher.Constraint("Equal", 7, 8),
    Sketcher.Constraint("Equal", 8, 10),
    Sketcher.Constraint("Equal", 10, 12),
    Sketcher.Constraint("Equal", 12, 14),
    Sketcher.Constraint("Horizontal", 7, 3, 8, 3),
    Sketcher.Constraint("Horizontal", 5, 3, 12, 3),
    Sketcher.Constraint("Equal", 4, 9),
    Sketcher.Constraint("Radius", 1, 4.0),
    Sketcher.Constraint("DistanceY", -1, 1, 3, 2, 10.0),
    Sketcher.Constraint("DistanceX", 2, 2, 5, 2, 24.0),
    Sketcher.Constraint("DistanceY", 2, 2, 2, 1, 30.0),
    Sketcher.Constraint("DistanceX", -1, 1, 1, 3, 19.111),
    Sketcher.Constraint("DistanceX", -1, 1, 8, 3, 110.389),
])
pocket6 = body.newObject("PartDesign::Pocket", "Pocket005")
pocket6.Profile = sketch10
pocket6.Length = 5

# Sketch on XY plane
sketch11 = body.newObject("Sketcher::SketchObject", "Sketch010")
sketch11.AttachmentSupport = (doc.getObject("XY_Plane"), [""])
sketch11.MapMode = "FlatFace"
sketch11.AttachmentOffset = App.Placement(V(0, 0, 4), App.Rotation())
sketch11.addGeometry([
    Part.Circle(V(97.8, 7, 0), V(0, 0, 1), 1.6),
    Part.Circle(V(97.8, 51, 0), V(0, 0, 1), 1.6),
    Part.Circle(V(31.8, 7, 0), V(0, 0, 1), 1.6),
    Part.Circle(V(31.8, 51, 0), V(0, 0, 1), 1.6),
], False)
sketch11.addConstraint([
    Sketcher.Constraint("Equal", 0, 1),
    Sketcher.Constraint("Equal", 1, 2),
    Sketcher.Constraint("Equal", 2, 3),
    Sketcher.Constraint("Horizontal", 0, 3, 2, 3),
    Sketcher.Constraint("Horizontal", 1, 3, 3, 3),
    Sketcher.Constraint("Vertical", 0, 3, 1, 3),
    Sketcher.Constraint("Vertical", 2, 3, 3, 3),
    Sketcher.Constraint("Diameter", 0, 3.2),
    Sketcher.Constraint("DistanceY", -1, 1, 0, 3, 7.0),
    Sketcher.Constraint("DistanceY", -1, 1, 1, 3, 51.0),
    Sketcher.Constraint("DistanceX", 2, 3, 0, 3, 66.0),
    Sketcher.Constraint("DistanceX", -1, 1, 0, 3, 97.75),
])
pad5 = body.newObject("PartDesign::Pad", "Pad004")
pad5.Profile = sketch11
pad5.Length = 4
pad5.Reversed = True

# Sketch on YZ plane
sketch12 = body.newObject("Sketcher::SketchObject", "Sketch011")
sketch12.AttachmentSupport = (doc.getObject("YZ_Plane"), [""])
sketch12.MapMode = "FlatFace"
sketch12.AttachmentOffset = App.Placement(V(0, 0, -3.75), App.Rotation())
sketch12.addGeometry([
    Part.Circle(V(46, 2.5, 0), V(0, 0, 1), 1.2),
    Part.Circle(V(34, 2.5, 0), V(0, 0, 1), 1.2),
    Part.Circle(V(24, 2.5, 0), V(0, 0, 1), 1.2),
    Part.Circle(V(12, 2.5, 0), V(0, 0, 1), 1.2),
], False)
sketch12.addConstraint([
    Sketcher.Constraint("Equal", 0, 1),
    Sketcher.Constraint("Equal", 1, 2),
    Sketcher.Constraint("Equal", 2, 3),
    Sketcher.Constraint("Horizontal", 0, 3, 1, 3),
    Sketcher.Constraint("Horizontal", 1, 3, 2, 3),
    Sketcher.Constraint("Horizontal", 2, 3, 3, 3),
    Sketcher.Constraint("Diameter", 0, 2.5),
    Sketcher.Constraint("DistanceX", -1, 1, 0, 3, 46.0),
    Sketcher.Constraint("DistanceX", -1, 1, 1, 3, 34.0),
    Sketcher.Constraint("DistanceX", -1, 1, 2, 3, 24.0),
    Sketcher.Constraint("DistanceX", -1, 1, 3, 3, 12.0),
    Sketcher.Constraint("DistanceY", -1, 1, 0, 3, 2.5),
])
pocket7 = body.newObject("PartDesign::Pocket", "Pocket006")
pocket7.Profile = sketch12
pocket7.Length = 10
pocket7.Reversed = True

doc.recompute()
